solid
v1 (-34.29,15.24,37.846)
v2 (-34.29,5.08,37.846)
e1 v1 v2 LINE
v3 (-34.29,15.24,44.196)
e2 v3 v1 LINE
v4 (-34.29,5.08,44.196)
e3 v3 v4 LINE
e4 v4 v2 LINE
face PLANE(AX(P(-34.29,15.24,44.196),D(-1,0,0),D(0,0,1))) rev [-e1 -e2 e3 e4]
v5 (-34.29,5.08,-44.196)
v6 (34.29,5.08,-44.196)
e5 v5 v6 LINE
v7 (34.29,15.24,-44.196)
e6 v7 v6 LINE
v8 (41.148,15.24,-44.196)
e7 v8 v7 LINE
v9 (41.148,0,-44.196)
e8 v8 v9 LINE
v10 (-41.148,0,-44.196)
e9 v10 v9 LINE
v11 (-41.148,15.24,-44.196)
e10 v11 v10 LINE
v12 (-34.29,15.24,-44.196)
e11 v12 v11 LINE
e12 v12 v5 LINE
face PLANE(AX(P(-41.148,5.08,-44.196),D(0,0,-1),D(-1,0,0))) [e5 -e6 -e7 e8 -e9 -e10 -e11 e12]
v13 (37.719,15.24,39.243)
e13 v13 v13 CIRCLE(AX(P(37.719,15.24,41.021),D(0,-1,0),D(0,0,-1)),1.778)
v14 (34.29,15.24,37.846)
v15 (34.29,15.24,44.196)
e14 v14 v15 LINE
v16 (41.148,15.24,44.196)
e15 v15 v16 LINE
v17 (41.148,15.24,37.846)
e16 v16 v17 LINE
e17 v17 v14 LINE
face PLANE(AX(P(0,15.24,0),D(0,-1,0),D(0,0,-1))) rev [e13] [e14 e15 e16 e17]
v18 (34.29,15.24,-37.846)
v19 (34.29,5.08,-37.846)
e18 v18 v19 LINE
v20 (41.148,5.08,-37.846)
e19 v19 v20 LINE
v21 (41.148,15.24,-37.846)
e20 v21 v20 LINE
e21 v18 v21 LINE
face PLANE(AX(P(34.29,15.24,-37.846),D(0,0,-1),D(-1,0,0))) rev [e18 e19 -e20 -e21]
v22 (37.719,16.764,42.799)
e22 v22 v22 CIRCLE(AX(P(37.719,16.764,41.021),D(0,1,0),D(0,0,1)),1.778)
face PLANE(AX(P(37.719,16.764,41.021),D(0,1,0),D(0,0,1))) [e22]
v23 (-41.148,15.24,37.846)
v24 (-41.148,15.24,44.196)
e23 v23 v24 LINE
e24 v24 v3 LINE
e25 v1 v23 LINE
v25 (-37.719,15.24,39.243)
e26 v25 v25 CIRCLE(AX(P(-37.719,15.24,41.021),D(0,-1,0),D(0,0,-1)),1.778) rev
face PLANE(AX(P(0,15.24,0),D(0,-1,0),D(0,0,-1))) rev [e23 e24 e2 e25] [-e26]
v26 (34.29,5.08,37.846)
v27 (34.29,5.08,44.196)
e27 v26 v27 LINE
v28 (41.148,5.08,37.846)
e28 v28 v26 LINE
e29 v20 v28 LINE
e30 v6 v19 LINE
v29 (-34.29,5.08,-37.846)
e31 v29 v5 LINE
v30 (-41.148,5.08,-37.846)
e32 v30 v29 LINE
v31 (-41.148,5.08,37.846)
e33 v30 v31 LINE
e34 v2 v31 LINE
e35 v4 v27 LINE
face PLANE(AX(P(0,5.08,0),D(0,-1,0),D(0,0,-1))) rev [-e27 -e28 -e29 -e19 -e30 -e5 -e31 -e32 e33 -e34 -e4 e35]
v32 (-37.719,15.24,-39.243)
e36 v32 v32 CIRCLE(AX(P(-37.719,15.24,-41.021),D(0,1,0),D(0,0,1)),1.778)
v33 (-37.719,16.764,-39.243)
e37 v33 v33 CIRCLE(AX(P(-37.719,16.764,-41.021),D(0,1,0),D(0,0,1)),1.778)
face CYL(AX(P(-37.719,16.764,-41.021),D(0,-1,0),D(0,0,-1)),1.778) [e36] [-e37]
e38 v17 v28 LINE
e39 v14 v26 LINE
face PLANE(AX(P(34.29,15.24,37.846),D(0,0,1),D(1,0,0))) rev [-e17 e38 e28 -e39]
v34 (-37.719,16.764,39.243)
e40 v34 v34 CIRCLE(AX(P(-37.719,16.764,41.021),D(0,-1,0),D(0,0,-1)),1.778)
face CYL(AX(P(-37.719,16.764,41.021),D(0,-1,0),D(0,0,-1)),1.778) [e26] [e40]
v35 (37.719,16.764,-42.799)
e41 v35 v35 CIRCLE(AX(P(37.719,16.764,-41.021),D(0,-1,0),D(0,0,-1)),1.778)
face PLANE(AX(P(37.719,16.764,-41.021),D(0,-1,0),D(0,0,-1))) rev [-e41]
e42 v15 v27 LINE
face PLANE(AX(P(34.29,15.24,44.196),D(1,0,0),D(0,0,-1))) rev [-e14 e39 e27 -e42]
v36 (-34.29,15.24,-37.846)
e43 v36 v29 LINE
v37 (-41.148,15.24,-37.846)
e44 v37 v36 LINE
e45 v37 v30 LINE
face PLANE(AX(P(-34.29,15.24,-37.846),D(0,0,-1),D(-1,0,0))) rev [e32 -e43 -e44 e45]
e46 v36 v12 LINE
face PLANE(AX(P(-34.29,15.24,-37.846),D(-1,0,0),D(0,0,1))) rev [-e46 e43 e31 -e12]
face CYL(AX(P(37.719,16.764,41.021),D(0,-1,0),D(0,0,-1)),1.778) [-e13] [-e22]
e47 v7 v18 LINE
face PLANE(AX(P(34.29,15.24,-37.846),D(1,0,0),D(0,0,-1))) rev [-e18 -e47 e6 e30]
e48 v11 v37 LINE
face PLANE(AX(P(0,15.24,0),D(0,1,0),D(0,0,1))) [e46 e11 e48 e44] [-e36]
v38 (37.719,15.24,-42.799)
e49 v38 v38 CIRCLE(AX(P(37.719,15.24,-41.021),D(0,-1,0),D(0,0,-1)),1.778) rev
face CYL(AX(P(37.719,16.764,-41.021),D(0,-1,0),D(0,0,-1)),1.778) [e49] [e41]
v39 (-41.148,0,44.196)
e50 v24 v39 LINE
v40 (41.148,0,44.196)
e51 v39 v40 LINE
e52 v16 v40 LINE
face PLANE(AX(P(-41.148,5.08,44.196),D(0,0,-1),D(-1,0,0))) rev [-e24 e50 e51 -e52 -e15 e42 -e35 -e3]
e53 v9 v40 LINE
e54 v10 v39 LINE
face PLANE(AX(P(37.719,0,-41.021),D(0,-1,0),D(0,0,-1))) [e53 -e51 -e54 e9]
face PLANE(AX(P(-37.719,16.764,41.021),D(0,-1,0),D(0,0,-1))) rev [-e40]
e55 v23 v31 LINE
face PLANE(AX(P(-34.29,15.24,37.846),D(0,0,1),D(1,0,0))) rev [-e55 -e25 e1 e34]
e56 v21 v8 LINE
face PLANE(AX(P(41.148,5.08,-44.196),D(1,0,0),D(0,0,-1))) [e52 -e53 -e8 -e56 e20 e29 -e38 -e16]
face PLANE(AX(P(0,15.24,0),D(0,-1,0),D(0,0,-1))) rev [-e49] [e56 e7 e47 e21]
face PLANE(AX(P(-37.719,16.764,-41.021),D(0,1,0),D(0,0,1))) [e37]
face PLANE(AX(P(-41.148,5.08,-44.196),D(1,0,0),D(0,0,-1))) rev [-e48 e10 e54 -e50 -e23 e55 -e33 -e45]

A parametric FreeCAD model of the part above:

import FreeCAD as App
import Part
import Sketcher

V = App.Vector
Q = App.Units.Quantity

doc = App.newDocument("Part")
body = doc.addObject("PartDesign::Body", "Body")

# Sketch on XZ plane
sketch1 = doc.addObject("Sketcher::SketchObject", "Sketch")
body.addObject(sketch1)
sketch1.AttachmentSupport = (doc.XZ_Plane, [""])
sketch1.MapMode = "FlatFace"
sketch1.addGeometry(Part.Circle(V(37.7, 41, 0), V(0, 0, 1), 1.8), False)
sketch1.addConstraint(Sketcher.Constraint("Diameter", 0, Q("0.14 in")))
sketch1.addConstraint(Sketcher.Constraint("DistanceX", -1, 1, 0, 3, Q("1.485 in")))
sketch1.addConstraint(Sketcher.Constraint("DistanceY", -1, 1, 0, 3, Q("1.615 in")))
pad1 = doc.addObject("PartDesign::Pad", "Pad")
body.addObject(pad1)
pad1.Profile = sketch1
pad1.Length = Q("0.66 in")
pad1.Reversed = True
body2 = doc.addObject("PartDesign::Body", "Body001")

# Sketch on XZ plane
sketch2 = doc.addObject("Sketcher::SketchObject", "Sketch001")
body2.addObject(sketch2)
sketch2.AttachmentSupport = (doc.getObject("XZ_Plane001"), [""])
sketch2.MapMode = "FlatFace"
sketch2.addGeometry(Part.Circle(V(-37.7, 41, 0), V(0, 0, 1), 1.8), False)
sketch2.addConstraint(Sketcher.Constraint("Diameter", 0, Q("0.14 in")))
sketch2.addConstraint(Sketcher.Constraint("DistanceX", 0, 3, -1, 1, Q("1.485 in")))
sketch2.addConstraint(Sketcher.Constraint("DistanceY", -1, 1, 0, 3, Q("1.615 in")))
pad2 = doc.addObject("PartDesign::Pad", "Pad001")
body2.addObject(pad2)
pad2.Profile = sketch2
pad2.Length = Q("0.66 in")
pad2.Reversed = True
body3 = doc.addObject("PartDesign::Body", "Body002")

# Sketch on XZ plane
sketch3 = doc.addObject("Sketcher::SketchObject", "Sketch002")
body3.addObject(sketch3)
sketch3.AttachmentSupport = (doc.getObject("XZ_Plane002"), [""])
sketch3.MapMode = "FlatFace"
sketch3.addGeometry(Part.Circle(V(37.7, -41, 0), V(0, 0, 1), 1.8), False)
sketch3.addConstraint(Sketcher.Constraint("Diameter", 0, Q("0.14 in")))
sketch3.addConstraint(Sketcher.Constraint("DistanceX", -1, 1, 0, 3, Q("1.485 in")))
sketch3.addConstraint(Sketcher.Constraint("DistanceY", 0, 3, -1, 1, Q("1.615 in")))
pad3 = doc.addObject("PartDesign::Pad", "Pad002")
body3.addObject(pad3)
pad3.Profile = sketch3
pad3.Length = Q("0.66 in")
pad3.Reversed = True
body4 = doc.addObject("PartDesign::Body", "Body003")

# Sketch on XZ plane
sketch4 = doc.addObject("Sketcher::SketchObject", "Sketch003")
body4.addObject(sketch4)
sketch4.AttachmentSupport = (doc.getObject("XZ_Plane003"), [""])
sketch4.MapMode = "FlatFace"
sketch4.addGeometry(Part.Circle(V(-37.7, -41, 0), V(0, 0, 1), 1.8), False)
sketch4.addConstraint(Sketcher.Constraint("Diameter", 0, Q("0.14 in")))
sketch4.addConstraint(Sketcher.Constraint("DistanceX", 0, 3, -1, 1, Q("1.485 in")))
sketch4.addConstraint(Sketcher.Constraint("DistanceY", 0, 3, -1, 1, Q("1.615 in")))
pad4 = doc.addObject("PartDesign::Pad", "Pad003")
body4.addObject(pad4)
pad4.Profile = sketch4
pad4.Length = Q("0.66 in")
pad4.Reversed = True
body.AllowCompound = True
doc.recompute()

boolean = doc.addObject("PartDesign::Boolean", "Boolean")
body.addObject(boolean)
boolean.Type = "Fuse"
boolean.addObjects([body2])
doc.recompute()

boolean2 = doc.addObject("PartDesign::Boolean", "Boolean001")
body.addObject(boolean2)
boolean2.Type = "Fuse"
boolean2.addObjects([body3])
doc.recompute()

boolean3 = doc.addObject("PartDesign::Boolean", "Boolean002")
body.addObject(boolean3)
boolean3.Type = "Fuse"
boolean3.addObjects([body4])

# Sketch on XZ plane
sketch5 = doc.addObject("Sketcher::SketchObject", "Sketch004")
body.addObject(sketch5)
sketch5.AttachmentSupport = (doc.XZ_Plane, [""])
sketch5.MapMode = "FlatFace"
sketch5.addGeometry(Part.LineSegment(V(-41.1, -44.2, 0), V(-41.1, 44.2, 0)), False)
sketch5.addGeometry(Part.LineSegment(V(-41.1, 44.2, 0), V(41.1, 44.2, 0)), False)
sketch5.addGeometry(Part.LineSegment(V(41.1, 44.2, 0), V(41.1, -44.2, 0)), False)
sketch5.addGeometry(Part.LineSegment(V(41.1, -44.2, 0), V(-41.1, -44.2, 0)), False)
sketch5.addGeometry(Part.Circle(V(-37.7, 41, 0), V(0, 0, 1), 1.8), False)
sketch5.addGeometry(Part.Circle(V(37.7, 41, 0), V(0, 0, 1), 1.8), False)
sketch5.addGeometry(Part.Circle(V(-37.7, -41, 0), V(0, 0, 1), 1.8), False)
sketch5.addGeometry(Part.Circle(V(37.7, -41, 0), V(0, 0, 1), 1.8), False)
sketch5.addConstraint(Sketcher.Constraint("Coincident", 0, 2, 1, 1))
sketch5.addConstraint(Sketcher.Constraint("Coincident", 1, 2, 2, 1))
sketch5.addConstraint(Sketcher.Constraint("Coincident", 2, 2, 3, 1))
sketch5.addConstraint(Sketcher.Constraint("Coincident", 3, 2, 0, 1))
sketch5.addConstraint(Sketcher.Constraint("Vertical", 0))
sketch5.addConstraint(Sketcher.Constraint("Horizontal", 1))
sketch5.addConstraint(Sketcher.Constraint("Vertical", 2))
sketch5.addConstraint(Sketcher.Constraint("Horizontal", 3))
sketch5.addConstraint(Sketcher.Constraint("Equal", 4, 5))
sketch5.addConstraint(Sketcher.Constraint("Equal", 5, 6))
sketch5.addConstraint(Sketcher.Constraint("Equal", 6, 7))
sketch5.addConstraint(Sketcher.Constraint("Symmetric", 5, 3, 6, 3, -1, 1))
sketch5.addConstraint(Sketcher.Constraint("Symmetric", 4, 3, 7, 3, -1, 1))
sketch5.addConstraint(Sketcher.Constraint("Symmetric", 0, 2, 2, 2, -1, 1))
sketch5.addConstraint(Sketcher.Constraint("Symmetric", 4, 3, 5, 3, -2))
sketch5.addConstraint(Sketcher.Constraint("Diameter", 4, Q("0.14 in")))
sketch5.addConstraint(Sketcher.Constraint("DistanceX", 1, 1, 1, 2, Q("3.24 in")))
sketch5.addConstraint(Sketcher.Constraint("DistanceY", 0, 1, 0, 2, Q("3.48 in")))
sketch5.addConstraint(Sketcher.Constraint("DistanceX", 4, 3, 5, 3, Q("2.97 in")))
sketch5.addConstraint(Sketcher.Constraint("DistanceY", 6, 3, 4, 3, Q("3.23 in")))
pad5 = doc.addObject("PartDesign::Pad", "Pad004")
body.addObject(pad5)
pad5.Profile = sketch5
pad5.Length = Q("0.2 in")
pad5.Reversed = True

# Sketch on XZ plane
sketch6 = doc.addObject("Sketcher::SketchObject", "Sketch005")
body.addObject(sketch6)
sketch6.AttachmentSupport = (doc.XZ_Plane, [""])
sketch6.MapMode = "FlatFace"
sketch6.AttachmentOffset = App.Placement(V(0, 0, -0.2 * 25.4), App.Rotation())
sketch6.addGeometry(Part.LineSegment(V(-41, -44, 0), V(-41, -38, 0)), False)
sketch6.addGeometry(Part.LineSegment(V(-41, -38, 0), V(-34, -38, 0)), False)
sketch6.addGeometry(Part.LineSegment(V(-34, -38, 0), V(-34, -44, 0)), False)
sketch6.addGeometry(Part.LineSegment(V(-34, -44, 0), V(-41, -44, 0)), False)
sketch6.addGeometry(Part.LineSegment(V(34, 38, 0), V(34, 44, 0)), False)
sketch6.addGeometry(Part.LineSegment(V(34, 44, 0), V(41, 44, 0)), False)
sketch6.addGeometry(Part.LineSegment(V(41, 44, 0), V(41, 38, 0)), False)
sketch6.addGeometry(Part.LineSegment(V(41, 38, 0), V(34, 38, 0)), False)
sketch6.addGeometry(Part.LineSegment(V(-41, 38, 0), V(-41, 44, 0)), False)
sketch6.addGeometry(Part.LineSegment(V(-41, 44, 0), V(-34, 44, 0)), False)
sketch6.addGeometry(Part.LineSegment(V(-34, 44, 0), V(-34, 38, 0)), False)
sketch6.addGeometry(Part.LineSegment(V(-34, 38, 0), V(-41, 38, 0)), False)
sketch6.addGeometry(Part.LineSegment(V(34, -44, 0), V(34, -38, 0)), False)
sketch6.addGeometry(Part.LineSegment(V(34, -38, 0), V(41, -38, 0)), False)
sketch6.addGeometry(Part.LineSegment(V(41, -38, 0), V(41, -44, 0)), False)
sketch6.addGeometry(Part.LineSegment(V(41, -44, 0), V(34, -44, 0)), False)
sketch6.addConstraint(Sketcher.Constraint("Coincident", 0, 2, 1, 1))
sketch6.addConstraint(Sketcher.Constraint("Coincident", 1, 2, 2, 1))
sketch6.addConstraint(Sketcher.Constraint("Coincident", 2, 2, 3, 1))
sketch6.addConstraint(Sketcher.Constraint("Coincident", 3, 2, 0, 1))
sketch6.addConstraint(Sketcher.Constraint("Coincident", 4, 2, 5, 1))
sketch6.addConstraint(Sketcher.Constraint("Coincident", 5, 2, 6, 1))
sketch6.addConstraint(Sketcher.Constraint("Coincident", 6, 2, 7, 1))
sketch6.addConstraint(Sketcher.Constraint("Coincident", 7, 2, 4, 1))
sketch6.addConstraint(Sketcher.Constraint("Coincident", 8, 2, 9, 1))
sketch6.addConstraint(Sketcher.Constraint("Coincident", 9, 2, 10, 1))
sketch6.addConstraint(Sketcher.Constraint("Coincident", 10, 2, 11, 1))
sketch6.addConstraint(Sketcher.Constraint("Coincident", 11, 2, 8, 1))
sketch6.addConstraint(Sketcher.Constraint("Coincident", 12, 2, 13, 1))
sketch6.addConstraint(Sketcher.Constraint("Coincident", 13, 2, 14, 1))
sketch6.addConstraint(Sketcher.Constraint("Coincident", 14, 2, 15, 1))
sketch6.addConstraint(Sketcher.Constraint("Coincident", 15, 2, 12, 1))
sketch6.addConstraint(Sketcher.Constraint("Vertical", 0))
sketch6.addConstraint(Sketcher.Constraint("Horizontal", 1))
sketch6.addConstraint(Sketcher.Constraint("Vertical", 2))
sketch6.addConstraint(Sketcher.Constraint("Horizontal", 3))
sketch6.addConstraint(Sketcher.Constraint("Vertical", 4))
sketch6.addConstraint(Sketcher.Constraint("Horizontal", 5))
sketch6.addConstraint(Sketcher.Constraint("Vertical", 6))
sketch6.addConstraint(Sketcher.Constraint("Horizontal", 7))
sketch6.addConstraint(Sketcher.Constraint("Vertical", 8))
sketch6.addConstraint(Sketcher.Constraint("Horizontal", 9))
sketch6.addConstraint(Sketcher.Constraint("Vertical", 10))
sketch6.addConstraint(Sketcher.Constraint("Horizontal", 11))
sketch6.addConstraint(Sketcher.Constraint("Vertical", 12))
sketch6.addConstraint(Sketcher.Constraint("Horizontal", 13))
sketch6.addConstraint(Sketcher.Constraint("Vertical", 14))
sketch6.addConstraint(Sketcher.Constraint("Horizontal", 15))
sketch6.addConstraint(Sketcher.Constraint("Symmetric", 2, 2, 4, 2, -1, 1))
sketch6.addConstraint(Sketcher.Constraint("Symmetric", 0, 2, 6, 2, -1, 1))
sketch6.addConstraint(Sketcher.Constraint("Symmetric", 10, 2, 12, 2, -1, 1))
sketch6.addConstraint(Sketcher.Constraint("Symmetric", 8, 2, 14, 2, -1, 1))
sketch6.addConstraint(Sketcher.Constraint("Symmetric", 5, 2, 8, 2, -2))
sketch6.addConstraint(Sketcher.Constraint("Symmetric", 7, 2, 10, 2, -2))
sketch6.addConstraint(Sketcher.Constraint("DistanceX", 1, 1, 1, 2, Q("0.27 in")))
sketch6.addConstraint(Sketcher.Constraint("DistanceY", 0, 1, 0, 2, Q("0.25 in")))
sketch6.addConstraint(Sketcher.Constraint("DistanceX", 1, 2, 4, 2, Q("2.7 in")))
sketch6.addConstraint(Sketcher.Constraint("DistanceY", 0, 2, -1, 1, Q("1.49 in")))
pad6 = doc.addObject("PartDesign::Pad", "Pad005")
body.addObject(pad6)
pad6.Profile = sketch6
pad6.Length = Q("0.4 in")
pad6.Reversed = True

doc.recompute()
